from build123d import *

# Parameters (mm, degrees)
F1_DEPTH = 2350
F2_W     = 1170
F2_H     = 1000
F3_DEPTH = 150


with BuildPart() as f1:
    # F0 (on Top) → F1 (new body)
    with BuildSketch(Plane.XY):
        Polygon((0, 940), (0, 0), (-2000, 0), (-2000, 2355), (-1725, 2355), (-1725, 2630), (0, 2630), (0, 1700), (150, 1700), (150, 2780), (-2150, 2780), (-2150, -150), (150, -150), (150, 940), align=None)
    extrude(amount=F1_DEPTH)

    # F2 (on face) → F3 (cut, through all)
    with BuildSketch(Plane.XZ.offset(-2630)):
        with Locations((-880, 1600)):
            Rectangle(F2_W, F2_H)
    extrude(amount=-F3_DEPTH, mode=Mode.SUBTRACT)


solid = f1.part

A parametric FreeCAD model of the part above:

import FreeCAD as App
import Part
import Sketcher


def add_polygon(sketch, points):
    """Adds a closed chain of lines whose ends are joined by coincident constraints."""
    first, n = sketch.GeometryCount, len(points)
    for a, b in zip(points, points[1:] + points[:1]):
        sketch.addGeometry(Part.LineSegment(App.Vector(*a, 0), App.Vector(*b, 0)), False)
    for i in range(n):
        sketch.addConstraint(Sketcher.Constraint("Coincident", first + i, 2, first + (i + 1) % n, 1))

doc = App.newDocument("Part")
params = doc.addObject("Spreadsheet::Sheet", "Params")
for row, (alias, value) in enumerate([
    ("sketch1_width", "2000 mm"),
    ("sketch1_width2", "275 mm"),
    ("sketch1_width3", "150 mm"),
    ("sketch1_width4", "2300 mm"),
    ("sketch1_height", "940 mm"),
    ("pad1_length", "2350 mm"),
    ("sketch2_width", "1170 mm"),
    ("sketch2_height", "1000 mm"),
], start=1):
    params.set(f"A{row}", alias)
    params.set(f"B{row}", "=" + value)
    params.setAlias(f"B{row}", alias)

body = doc.addObject("PartDesign::Body", "Body")

sketch1 = body.newObject("Sketcher::SketchObject", "Sketch")
sketch1.AttachmentSupport = (doc.getObject("XY_Plane"), [""])
sketch1.MapMode = "FlatFace"
add_polygon(sketch1, [(0, 940), (0, 0), (-2000, 0), (-2000, 2355), (-1725, 2355), (-1725, 2630), (0, 2630), (0, 1700), (150, 1700), (150, 2780), (-2150, 2780), (-2150, -150), (150, -150), (150, 940)])
sketch1.addConstraint([
    Sketcher.Constraint("Vertical", 0),
    Sketcher.Constraint("Horizontal", 1),
    Sketcher.Constraint("Vertical", 2),
    Sketcher.Constraint("Horizontal", 3),
    Sketcher.Constraint("Vertical", 4),
    Sketcher.Constraint("Horizontal", 5),
    Sketcher.Constraint("Vertical", 6),
    Sketcher.Constraint("Horizontal", 7),
    Sketcher.Constraint("Vertical", 8),
    Sketcher.Constraint("Horizontal", 9),
    Sketcher.Constraint("Vertical", 10),
    Sketcher.Constraint("Horizontal", 11),
    Sketcher.Constraint("Vertical", 12),
    Sketcher.Constraint("Horizontal", 13),
    Sketcher.Constraint("Coincident", 0, 2, -1, 1),
    Sketcher.Constraint("PointOnObject", 5, 2, -2),
    Sketcher.Constraint("Vertical", 8, 2, 11, 2),
    Sketcher.Constraint("Equal", 3, 4),
    Sketcher.Constraint("DistanceX", 1, 2, 1, 1, 2000.0),
    Sketcher.Constraint("DistanceX", 3, 1, 3, 2, 275.0),
    Sketcher.Constraint("DistanceX", 7, 1, 7, 2, 150.0),
    Sketcher.Constraint("DistanceX", 9, 2, 9, 1, 2300.0),
    Sketcher.Constraint("DistanceY", 0, 2, 0, 1, 940.0),
    Sketcher.Constraint("DistanceY", 2, 1, 2, 2, 2355.0),
    Sketcher.Constraint("DistanceY", 6, 2, 6, 1, 930.0),
    Sketcher.Constraint("DistanceY", 8, 1, 8, 2, 1080.0),
    Sketcher.Constraint("DistanceY", 10, 2, 10, 1, 2930.0),
])
sketch1.setExpression("Constraints[32]", "Params.sketch1_width")
sketch1.setExpression("Constraints[33]", "Params.sketch1_width2")
sketch1.setExpression("Constraints[34]", "Params.sketch1_width3")
sketch1.setExpression("Constraints[35]", "Params.sketch1_width4")
sketch1.setExpression("Constraints[36]", "Params.sketch1_height")
pad1 = body.newObject("PartDesign::Pad", "Pad")
pad1.Profile = sketch1
pad1.setExpression("Length", "Params.pad1_length")

sketch2 = body.newObject("Sketcher::SketchObject", "Sketch001")
sketch2.AttachmentSupport = (doc.getObject("XZ_Plane"), [""])
sketch2.MapMode = "FlatFace"
sketch2.AttachmentOffset = App.Placement(App.Vector(0, 0, -2630), App.Rotation())
add_polygon(sketch2, [(-1465, 2100), (-1465, 1100), (-295, 1100), (-295, 2100)])
sketch2.addConstraint([
    Sketcher.Constraint("Vertical", 0),
    Sketcher.Constraint("Horizontal", 1),
    Sketcher.Constraint("Vertical", 2),
    Sketcher.Constraint("Horizontal", 3),
    Sketcher.Constraint("DistanceX", 1, 1, 1, 2, 1170.0),
    Sketcher.Constraint("DistanceY", 0, 2, 0, 1, 1000.0),
    Sketcher.Constraint("DistanceX", 0, 2, -1, 1, 1465.0),
    Sketcher.Constraint("DistanceY", -1, 1, 0, 2, 1100.0),
])
sketch2.setExpression("Constraints[8]", "Params.sketch2_width")
sketch2.setExpression("Constraints[9]", "Params.sketch2_height")
pocket1 = body.newObject("PartDesign::Pocket", "Pocket")
pocket1.Profile = sketch2
pocket1.Type = "ThroughAll"

doc.recompute()
